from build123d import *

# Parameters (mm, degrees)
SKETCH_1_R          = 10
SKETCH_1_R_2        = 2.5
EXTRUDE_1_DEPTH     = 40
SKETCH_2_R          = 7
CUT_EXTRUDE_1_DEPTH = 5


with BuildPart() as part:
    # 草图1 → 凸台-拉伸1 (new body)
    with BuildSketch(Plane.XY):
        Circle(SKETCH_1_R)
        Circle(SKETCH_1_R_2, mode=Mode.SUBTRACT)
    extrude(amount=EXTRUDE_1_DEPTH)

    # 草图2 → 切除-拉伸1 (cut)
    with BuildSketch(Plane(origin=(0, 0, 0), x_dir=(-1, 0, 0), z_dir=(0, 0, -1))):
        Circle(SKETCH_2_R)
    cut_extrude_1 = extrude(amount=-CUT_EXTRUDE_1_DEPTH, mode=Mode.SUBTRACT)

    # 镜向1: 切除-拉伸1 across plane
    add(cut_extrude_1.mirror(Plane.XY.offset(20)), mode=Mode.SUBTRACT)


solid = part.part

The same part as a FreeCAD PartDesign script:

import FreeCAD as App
import Part
import Sketcher

V = App.Vector
Q = App.Units.Quantity

doc = App.newDocument("Part")
body = doc.addObject("PartDesign::Body", "Body")

# Sketch on XY plane
sketch1 = body.newObject("Sketcher::SketchObject", "Sketch")
sketch1.AttachmentSupport = (doc.getObject("XY_Plane"), [""])
sketch1.MapMode = "FlatFace"
sketch1.addGeometry([
    Part.Circle(V(0, 0, 0), V(0, 0, 1), 10),
    Part.Circle(V(0, 0, 0), V(0, 0, 1), 2.5),
], False)
sketch1.addConstraint([
    Sketcher.Constraint("Coincident", 0, 3, -1, 1),
    Sketcher.Constraint("Coincident", 1, 3, -1, 1),
    Sketcher.Constraint("Diameter", 0, Q("20 mm")),
    Sketcher.Constraint("Diameter", 1, Q("5 mm")),
])
pad1 = body.newObject("PartDesign::Pad", "Pad")
pad1.Profile = sketch1
pad1.Length = 40

# Sketch on XY plane
sketch2 = body.newObject("Sketcher::SketchObject", "Sketch001")
sketch2.AttachmentSupport = (doc.getObject("XY_Plane"), [""])
sketch2.MapMode = "FlatFace"
sketch2.addGeometry(Part.Circle(V(0, 0, 0), V(0, 0, 1), 7), False)
sketch2.addConstraint([
    Sketcher.Constraint("Coincident", 0, 3, -1, 1),
    Sketcher.Constraint("Diameter", 0, Q("14 mm")),
])
pocket1 = body.newObject("PartDesign::Pocket", "Pocket")
pocket1.Profile = sketch2
pocket1.Length = 5
pocket1.Reversed = True
doc.recompute()

datumplane = body.newObject("PartDesign::Plane", "DatumPlane")
datumplane.AttachmentSupport = (doc.getObject("XY_Plane"), [""])
datumplane.MapMode = "FlatFace"
datumplane.AttachmentOffset = App.Placement(V(0, 0, 20), App.Rotation())
mirrored = body.newObject("PartDesign::Mirrored", "Mirrored")
mirrored.Originals = [pocket1]
mirrored.MirrorPlane = (datumplane, [""])
body.Tip = mirrored

doc.recompute()
